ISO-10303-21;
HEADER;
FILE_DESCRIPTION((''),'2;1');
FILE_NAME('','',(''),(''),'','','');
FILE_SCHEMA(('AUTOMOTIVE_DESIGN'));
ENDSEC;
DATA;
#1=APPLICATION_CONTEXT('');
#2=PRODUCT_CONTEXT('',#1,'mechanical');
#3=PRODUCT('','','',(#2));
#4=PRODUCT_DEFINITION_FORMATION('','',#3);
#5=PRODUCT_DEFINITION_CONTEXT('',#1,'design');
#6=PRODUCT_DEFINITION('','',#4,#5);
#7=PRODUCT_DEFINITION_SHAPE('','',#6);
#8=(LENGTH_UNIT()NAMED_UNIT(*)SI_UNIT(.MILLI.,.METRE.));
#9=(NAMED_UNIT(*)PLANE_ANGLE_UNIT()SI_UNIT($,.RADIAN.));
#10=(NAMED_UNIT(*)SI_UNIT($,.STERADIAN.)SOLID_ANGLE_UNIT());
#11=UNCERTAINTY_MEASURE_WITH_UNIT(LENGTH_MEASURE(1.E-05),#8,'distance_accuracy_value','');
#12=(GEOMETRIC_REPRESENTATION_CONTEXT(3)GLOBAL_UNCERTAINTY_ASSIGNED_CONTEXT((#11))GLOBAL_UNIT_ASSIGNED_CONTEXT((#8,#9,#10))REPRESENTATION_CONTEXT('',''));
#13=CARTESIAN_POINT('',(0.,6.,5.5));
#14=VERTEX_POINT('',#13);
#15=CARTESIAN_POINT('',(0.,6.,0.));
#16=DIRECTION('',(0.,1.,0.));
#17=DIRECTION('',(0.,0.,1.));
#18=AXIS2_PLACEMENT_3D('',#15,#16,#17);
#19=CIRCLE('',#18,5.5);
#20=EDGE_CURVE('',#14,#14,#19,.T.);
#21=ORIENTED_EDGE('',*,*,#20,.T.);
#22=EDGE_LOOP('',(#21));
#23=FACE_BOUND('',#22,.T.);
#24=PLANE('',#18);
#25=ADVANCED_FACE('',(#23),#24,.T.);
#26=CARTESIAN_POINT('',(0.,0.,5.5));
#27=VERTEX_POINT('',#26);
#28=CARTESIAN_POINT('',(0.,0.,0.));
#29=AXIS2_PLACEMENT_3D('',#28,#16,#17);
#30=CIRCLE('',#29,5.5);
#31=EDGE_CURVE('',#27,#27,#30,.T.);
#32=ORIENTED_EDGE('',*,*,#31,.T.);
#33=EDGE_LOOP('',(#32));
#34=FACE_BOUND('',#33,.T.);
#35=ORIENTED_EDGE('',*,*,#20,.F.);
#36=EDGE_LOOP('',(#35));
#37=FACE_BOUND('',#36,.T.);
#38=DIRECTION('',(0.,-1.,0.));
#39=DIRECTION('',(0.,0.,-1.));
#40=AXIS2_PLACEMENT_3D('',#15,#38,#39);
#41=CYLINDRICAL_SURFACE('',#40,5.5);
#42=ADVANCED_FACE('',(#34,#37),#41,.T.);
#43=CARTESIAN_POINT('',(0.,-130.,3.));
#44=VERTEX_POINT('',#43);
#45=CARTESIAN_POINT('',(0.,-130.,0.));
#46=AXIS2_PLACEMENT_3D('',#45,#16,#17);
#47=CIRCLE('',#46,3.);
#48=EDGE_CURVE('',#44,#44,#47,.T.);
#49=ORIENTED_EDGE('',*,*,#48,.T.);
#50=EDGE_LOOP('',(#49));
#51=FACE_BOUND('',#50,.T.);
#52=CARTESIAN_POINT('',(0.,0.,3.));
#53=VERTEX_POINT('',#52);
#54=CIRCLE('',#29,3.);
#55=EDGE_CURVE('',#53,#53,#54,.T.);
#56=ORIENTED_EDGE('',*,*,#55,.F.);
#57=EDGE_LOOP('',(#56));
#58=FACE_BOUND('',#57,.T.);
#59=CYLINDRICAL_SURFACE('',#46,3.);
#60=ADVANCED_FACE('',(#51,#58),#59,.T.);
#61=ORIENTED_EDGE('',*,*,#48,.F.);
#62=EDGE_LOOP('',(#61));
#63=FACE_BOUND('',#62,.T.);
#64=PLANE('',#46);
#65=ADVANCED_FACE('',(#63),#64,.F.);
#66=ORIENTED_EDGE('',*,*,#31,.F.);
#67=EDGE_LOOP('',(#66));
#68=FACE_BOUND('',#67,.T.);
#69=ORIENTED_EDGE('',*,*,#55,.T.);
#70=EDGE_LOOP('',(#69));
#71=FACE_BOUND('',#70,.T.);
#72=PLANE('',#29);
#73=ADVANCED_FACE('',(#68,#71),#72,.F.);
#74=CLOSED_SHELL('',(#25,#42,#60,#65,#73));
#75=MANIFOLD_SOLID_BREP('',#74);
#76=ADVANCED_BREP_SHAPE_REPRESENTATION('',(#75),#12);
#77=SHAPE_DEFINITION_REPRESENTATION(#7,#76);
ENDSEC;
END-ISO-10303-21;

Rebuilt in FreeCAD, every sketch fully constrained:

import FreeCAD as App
import Part
import Sketcher

V = App.Vector
Q = App.Units.Quantity

doc = App.newDocument("Part")
body = doc.addObject("PartDesign::Body", "Body")

# Sketch on XZ plane
sketch1 = body.newObject("Sketcher::SketchObject", "Sketch")
sketch1.AttachmentSupport = (doc.getObject("XZ_Plane"), [""])
sketch1.MapMode = "FlatFace"
sketch1.addGeometry(Part.Circle(V(0, 0, 0), V(0, 0, 1), 3), False)
sketch1.addConstraint(Sketcher.Constraint("Coincident", 0, 3, -1, 1))
sketch1.addConstraint(Sketcher.Constraint("Diameter", 0, Q("6 mm")))
pad1 = body.newObject("PartDesign::Pad", "Pad")
pad1.Profile = sketch1
pad1.Length = 130

# Sketch on XZ plane
sketch2 = body.newObject("Sketcher::SketchObject", "Sketch001")
sketch2.AttachmentSupport = (doc.getObject("XZ_Plane"), [""])
sketch2.MapMode = "FlatFace"
sketch2.addGeometry(Part.Circle(V(0, 0, 0), V(0, 0, 1), 6), False)
sketch2.addConstraint(Sketcher.Constraint("Coincident", 0, 3, -1, 1))
sketch2.addConstraint(Sketcher.Constraint("Diameter", 0, Q("11 mm")))
pad2 = body.newObject("PartDesign::Pad", "Pad001")
pad2.Profile = sketch2
pad2.Length = 6
pad2.Reversed = True

doc.recompute()
